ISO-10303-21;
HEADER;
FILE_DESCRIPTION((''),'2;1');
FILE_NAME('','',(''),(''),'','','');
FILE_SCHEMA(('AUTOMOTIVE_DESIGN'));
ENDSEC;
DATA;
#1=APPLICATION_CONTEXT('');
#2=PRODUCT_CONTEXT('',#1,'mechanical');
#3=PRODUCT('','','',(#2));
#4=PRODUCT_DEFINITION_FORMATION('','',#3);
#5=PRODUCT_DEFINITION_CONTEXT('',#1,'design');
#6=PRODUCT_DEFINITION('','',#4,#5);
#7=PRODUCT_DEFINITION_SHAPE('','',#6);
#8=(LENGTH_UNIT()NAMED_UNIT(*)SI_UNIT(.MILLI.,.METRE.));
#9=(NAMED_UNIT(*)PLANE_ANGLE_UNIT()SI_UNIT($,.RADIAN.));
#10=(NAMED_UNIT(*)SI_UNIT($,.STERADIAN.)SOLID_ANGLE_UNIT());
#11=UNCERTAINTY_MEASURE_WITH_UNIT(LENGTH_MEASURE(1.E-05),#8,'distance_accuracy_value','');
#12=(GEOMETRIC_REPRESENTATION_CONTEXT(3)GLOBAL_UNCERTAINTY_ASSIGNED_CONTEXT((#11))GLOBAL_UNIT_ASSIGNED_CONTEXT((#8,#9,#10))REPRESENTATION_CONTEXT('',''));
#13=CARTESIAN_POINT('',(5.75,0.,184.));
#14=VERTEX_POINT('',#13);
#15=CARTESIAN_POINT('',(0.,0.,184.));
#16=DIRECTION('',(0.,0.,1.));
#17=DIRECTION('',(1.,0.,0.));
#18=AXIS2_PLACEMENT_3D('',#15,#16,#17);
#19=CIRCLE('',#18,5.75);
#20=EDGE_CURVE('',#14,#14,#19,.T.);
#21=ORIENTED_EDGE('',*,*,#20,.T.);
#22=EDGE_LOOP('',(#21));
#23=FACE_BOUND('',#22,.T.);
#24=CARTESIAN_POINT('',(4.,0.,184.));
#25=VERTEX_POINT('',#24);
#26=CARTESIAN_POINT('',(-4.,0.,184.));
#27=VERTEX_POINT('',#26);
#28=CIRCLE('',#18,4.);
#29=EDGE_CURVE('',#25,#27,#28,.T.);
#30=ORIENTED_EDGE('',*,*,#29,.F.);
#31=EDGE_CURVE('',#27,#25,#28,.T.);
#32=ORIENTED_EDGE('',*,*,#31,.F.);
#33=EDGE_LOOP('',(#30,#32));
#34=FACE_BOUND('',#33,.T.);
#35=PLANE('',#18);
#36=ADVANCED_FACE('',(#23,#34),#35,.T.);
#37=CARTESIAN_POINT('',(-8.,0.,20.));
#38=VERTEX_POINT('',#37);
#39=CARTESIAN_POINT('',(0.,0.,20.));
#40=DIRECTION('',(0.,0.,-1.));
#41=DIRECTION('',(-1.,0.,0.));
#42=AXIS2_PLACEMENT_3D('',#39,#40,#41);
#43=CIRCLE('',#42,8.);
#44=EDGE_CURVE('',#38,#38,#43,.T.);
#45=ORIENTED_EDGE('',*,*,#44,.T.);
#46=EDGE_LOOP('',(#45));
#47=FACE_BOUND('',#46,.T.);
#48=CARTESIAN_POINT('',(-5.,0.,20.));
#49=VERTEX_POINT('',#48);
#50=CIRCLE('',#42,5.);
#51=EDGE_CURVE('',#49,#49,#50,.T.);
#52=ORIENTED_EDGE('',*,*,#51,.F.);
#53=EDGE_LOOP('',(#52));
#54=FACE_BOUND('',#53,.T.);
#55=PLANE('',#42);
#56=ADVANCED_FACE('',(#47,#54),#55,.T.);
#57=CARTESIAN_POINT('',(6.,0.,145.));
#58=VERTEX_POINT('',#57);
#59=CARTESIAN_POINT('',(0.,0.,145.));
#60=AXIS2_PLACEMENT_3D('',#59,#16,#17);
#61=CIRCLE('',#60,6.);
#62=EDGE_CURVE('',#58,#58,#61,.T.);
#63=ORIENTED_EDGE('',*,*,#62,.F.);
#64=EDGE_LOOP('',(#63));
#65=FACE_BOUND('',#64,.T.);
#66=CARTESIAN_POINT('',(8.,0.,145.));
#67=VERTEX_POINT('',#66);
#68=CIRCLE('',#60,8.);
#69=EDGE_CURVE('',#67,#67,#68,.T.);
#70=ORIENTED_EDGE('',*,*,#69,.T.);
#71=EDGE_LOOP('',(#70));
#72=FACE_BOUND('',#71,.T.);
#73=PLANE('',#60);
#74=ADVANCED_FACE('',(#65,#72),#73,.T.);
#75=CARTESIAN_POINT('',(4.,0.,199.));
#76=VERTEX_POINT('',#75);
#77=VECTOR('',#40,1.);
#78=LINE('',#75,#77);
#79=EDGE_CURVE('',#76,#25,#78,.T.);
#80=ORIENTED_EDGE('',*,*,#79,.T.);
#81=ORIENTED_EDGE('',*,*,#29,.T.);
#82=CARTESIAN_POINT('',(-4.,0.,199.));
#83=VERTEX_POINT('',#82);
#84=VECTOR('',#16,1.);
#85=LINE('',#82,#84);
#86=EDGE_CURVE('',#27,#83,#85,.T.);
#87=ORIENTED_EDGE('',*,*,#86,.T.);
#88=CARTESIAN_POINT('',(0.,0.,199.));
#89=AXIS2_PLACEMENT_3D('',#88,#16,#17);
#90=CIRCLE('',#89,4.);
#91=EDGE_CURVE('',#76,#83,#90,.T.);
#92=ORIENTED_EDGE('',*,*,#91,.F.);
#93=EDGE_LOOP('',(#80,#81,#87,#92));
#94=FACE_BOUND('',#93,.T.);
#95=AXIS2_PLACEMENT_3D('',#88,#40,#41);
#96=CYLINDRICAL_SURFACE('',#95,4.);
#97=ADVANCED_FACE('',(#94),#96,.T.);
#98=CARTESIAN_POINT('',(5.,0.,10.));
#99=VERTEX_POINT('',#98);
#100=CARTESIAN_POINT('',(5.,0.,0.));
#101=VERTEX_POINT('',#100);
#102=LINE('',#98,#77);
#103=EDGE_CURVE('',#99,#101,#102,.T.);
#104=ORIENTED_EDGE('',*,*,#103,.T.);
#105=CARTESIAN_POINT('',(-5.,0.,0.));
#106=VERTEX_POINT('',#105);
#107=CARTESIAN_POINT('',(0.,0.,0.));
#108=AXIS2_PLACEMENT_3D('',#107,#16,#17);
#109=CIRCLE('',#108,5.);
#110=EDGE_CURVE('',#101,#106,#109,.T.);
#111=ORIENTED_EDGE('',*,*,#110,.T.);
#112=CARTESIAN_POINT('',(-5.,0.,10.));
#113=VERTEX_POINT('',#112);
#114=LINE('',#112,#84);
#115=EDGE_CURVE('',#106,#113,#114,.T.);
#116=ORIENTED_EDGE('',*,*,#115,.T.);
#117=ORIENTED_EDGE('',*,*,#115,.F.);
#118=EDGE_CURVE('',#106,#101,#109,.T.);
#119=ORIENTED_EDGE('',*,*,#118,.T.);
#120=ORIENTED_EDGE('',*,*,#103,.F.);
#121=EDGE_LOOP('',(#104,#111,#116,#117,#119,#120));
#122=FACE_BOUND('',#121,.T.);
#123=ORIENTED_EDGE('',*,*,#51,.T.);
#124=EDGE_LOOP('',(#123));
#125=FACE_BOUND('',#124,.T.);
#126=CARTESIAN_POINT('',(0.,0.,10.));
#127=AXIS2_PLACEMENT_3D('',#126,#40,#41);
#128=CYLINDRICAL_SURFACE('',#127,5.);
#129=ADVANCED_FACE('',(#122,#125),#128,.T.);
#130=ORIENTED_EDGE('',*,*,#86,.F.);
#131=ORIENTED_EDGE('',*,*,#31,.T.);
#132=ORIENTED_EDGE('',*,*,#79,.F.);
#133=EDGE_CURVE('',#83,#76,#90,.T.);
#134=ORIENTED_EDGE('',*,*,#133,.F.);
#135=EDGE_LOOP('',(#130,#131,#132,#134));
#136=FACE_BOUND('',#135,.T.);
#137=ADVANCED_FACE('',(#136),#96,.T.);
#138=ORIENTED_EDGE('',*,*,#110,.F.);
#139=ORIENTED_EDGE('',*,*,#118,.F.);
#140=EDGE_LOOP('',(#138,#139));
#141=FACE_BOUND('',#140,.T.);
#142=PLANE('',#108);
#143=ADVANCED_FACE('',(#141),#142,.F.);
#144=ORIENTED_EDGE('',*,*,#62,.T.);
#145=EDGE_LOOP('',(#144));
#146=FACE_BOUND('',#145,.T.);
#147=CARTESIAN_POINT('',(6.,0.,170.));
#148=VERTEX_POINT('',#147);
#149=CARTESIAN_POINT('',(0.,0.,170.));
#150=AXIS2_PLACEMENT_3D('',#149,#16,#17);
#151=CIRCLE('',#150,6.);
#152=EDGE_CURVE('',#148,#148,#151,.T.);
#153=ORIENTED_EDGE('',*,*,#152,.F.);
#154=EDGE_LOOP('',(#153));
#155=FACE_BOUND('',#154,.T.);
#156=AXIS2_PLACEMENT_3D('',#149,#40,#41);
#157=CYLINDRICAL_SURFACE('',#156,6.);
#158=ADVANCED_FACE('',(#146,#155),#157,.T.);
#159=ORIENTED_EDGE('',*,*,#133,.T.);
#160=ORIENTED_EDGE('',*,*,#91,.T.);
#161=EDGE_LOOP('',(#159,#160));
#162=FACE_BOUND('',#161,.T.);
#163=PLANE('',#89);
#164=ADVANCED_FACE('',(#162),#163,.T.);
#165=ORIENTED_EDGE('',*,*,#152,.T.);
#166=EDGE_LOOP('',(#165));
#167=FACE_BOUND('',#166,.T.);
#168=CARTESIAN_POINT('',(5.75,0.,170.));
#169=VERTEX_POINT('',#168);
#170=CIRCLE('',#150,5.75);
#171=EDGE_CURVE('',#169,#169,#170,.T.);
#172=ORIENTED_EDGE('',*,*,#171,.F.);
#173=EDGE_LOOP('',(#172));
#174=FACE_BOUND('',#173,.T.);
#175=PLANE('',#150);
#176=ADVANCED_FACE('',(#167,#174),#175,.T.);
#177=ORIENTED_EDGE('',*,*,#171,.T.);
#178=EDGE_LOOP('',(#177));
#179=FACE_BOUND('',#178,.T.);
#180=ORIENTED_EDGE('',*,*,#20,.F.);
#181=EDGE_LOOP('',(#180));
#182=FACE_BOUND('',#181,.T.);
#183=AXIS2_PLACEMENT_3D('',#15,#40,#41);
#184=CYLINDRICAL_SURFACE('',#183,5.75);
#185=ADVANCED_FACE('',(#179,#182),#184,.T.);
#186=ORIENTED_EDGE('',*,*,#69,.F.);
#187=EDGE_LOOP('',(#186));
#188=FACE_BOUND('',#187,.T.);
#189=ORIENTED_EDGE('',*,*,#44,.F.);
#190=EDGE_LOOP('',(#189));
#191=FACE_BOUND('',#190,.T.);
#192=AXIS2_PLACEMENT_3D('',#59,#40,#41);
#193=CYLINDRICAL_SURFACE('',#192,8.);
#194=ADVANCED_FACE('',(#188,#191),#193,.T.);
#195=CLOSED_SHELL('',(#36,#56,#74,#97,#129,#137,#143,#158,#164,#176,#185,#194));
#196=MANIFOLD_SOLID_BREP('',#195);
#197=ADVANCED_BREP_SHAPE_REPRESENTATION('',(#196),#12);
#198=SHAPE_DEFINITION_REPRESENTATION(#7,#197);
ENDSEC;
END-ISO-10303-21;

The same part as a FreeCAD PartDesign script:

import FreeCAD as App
import Part
import Sketcher
from FreeCAD import Vector
Q = App.Units.Quantity

doc = App.newDocument("Part")
params = doc.addObject("Spreadsheet::Sheet", "Params")
for row, (alias, value) in enumerate([
    ("sketch1_diameter", "10 mm"),
    ("pad1_length", "10 mm"),
    ("sketch2_diameter", "16 mm"),
    ("pad2_length", "135 mm"),
    ("sketch3_diameter", "12 mm"),
    ("pad3_length", "25 mm"),
    ("sketch4_diameter", "11.5 mm"),
    ("pad4_length", "14 mm"),
    ("sketch5_diameter", "8 mm"),
    ("pad5_length", "15 mm"),
    ("sketch6_diameter", "16 mm"),
    ("sketch6_diameter2", "10 mm"),
    ("pocket1_length", "10 mm"),
], start=1):
    params.set(f"A{row}", alias)
    params.set(f"B{row}", "=" + value)
    params.setAlias(f"B{row}", alias)

body = doc.addObject("PartDesign::Body", "Body")

sketch1 = doc.addObject("Sketcher::SketchObject", "Sketch")
body.addObject(sketch1)
sketch1.AttachmentSupport = (doc.XY_Plane, [""])
sketch1.MapMode = "FlatFace"
sketch1.addGeometry(Part.Circle(Vector(0, 0, 0), Vector(0, 0, 1), 5), False)
sketch1.addConstraint([
    Sketcher.Constraint("Coincident", 0, 3, -1, 1),
    Sketcher.Constraint("Diameter", 0, Q("10 mm")),
])
sketch1.setExpression("Constraints[1]", "Params.sketch1_diameter")
pad1 = doc.addObject("PartDesign::Pad", "Pad")
body.addObject(pad1)
pad1.Profile = sketch1
pad1.setExpression("Length", "Params.pad1_length")

sketch2 = doc.addObject("Sketcher::SketchObject", "Sketch001")
body.addObject(sketch2)
sketch2.AttachmentSupport = (doc.XY_Plane, [""])
sketch2.MapMode = "FlatFace"
sketch2.AttachmentOffset = App.Placement(Vector(0, 0, 10), App.Rotation())
sketch2.addGeometry(Part.Circle(Vector(0, 0, 0), Vector(0, 0, 1), 8), False)
sketch2.addConstraint([
    Sketcher.Constraint("Coincident", 0, 3, -1, 1),
    Sketcher.Constraint("Diameter", 0, Q("16 mm")),
])
sketch2.setExpression("Constraints[1]", "Params.sketch2_diameter")
pad2 = doc.addObject("PartDesign::Pad", "Pad001")
body.addObject(pad2)
pad2.Profile = sketch2
pad2.setExpression("Length", "Params.pad2_length")

sketch3 = doc.addObject("Sketcher::SketchObject", "Sketch002")
body.addObject(sketch3)
sketch3.AttachmentSupport = (doc.XY_Plane, [""])
sketch3.MapMode = "FlatFace"
sketch3.AttachmentOffset = App.Placement(Vector(0, 0, 145), App.Rotation())
sketch3.addGeometry(Part.Circle(Vector(0, 0, 0), Vector(0, 0, 1), 6), False)
sketch3.addConstraint([
    Sketcher.Constraint("Coincident", 0, 3, -1, 1),
    Sketcher.Constraint("Diameter", 0, Q("12 mm")),
])
sketch3.setExpression("Constraints[1]", "Params.sketch3_diameter")
pad3 = doc.addObject("PartDesign::Pad", "Pad002")
body.addObject(pad3)
pad3.Profile = sketch3
pad3.setExpression("Length", "Params.pad3_length")

sketch4 = doc.addObject("Sketcher::SketchObject", "Sketch003")
body.addObject(sketch4)
sketch4.AttachmentSupport = (doc.XY_Plane, [""])
sketch4.MapMode = "FlatFace"
sketch4.AttachmentOffset = App.Placement(Vector(0, 0, 170), App.Rotation())
sketch4.addGeometry(Part.Circle(Vector(0, 0, 0), Vector(0, 0, 1), 6), False)
sketch4.addConstraint([
    Sketcher.Constraint("Coincident", 0, 3, -1, 1),
    Sketcher.Constraint("Diameter", 0, Q("11.5 mm")),
])
sketch4.setExpression("Constraints[1]", "Params.sketch4_diameter")
pad4 = doc.addObject("PartDesign::Pad", "Pad003")
body.addObject(pad4)
pad4.Profile = sketch4
pad4.setExpression("Length", "Params.pad4_length")

sketch5 = doc.addObject("Sketcher::SketchObject", "Sketch004")
body.addObject(sketch5)
sketch5.AttachmentSupport = (doc.XY_Plane, [""])
sketch5.MapMode = "FlatFace"
sketch5.AttachmentOffset = App.Placement(Vector(0, 0, 184), App.Rotation())
sketch5.addGeometry(Part.Circle(Vector(0, 0, 0), Vector(0, 0, 1), 4), False)
sketch5.addConstraint([
    Sketcher.Constraint("Coincident", 0, 3, -1, 1),
    Sketcher.Constraint("Diameter", 0, Q("8 mm")),
])
sketch5.setExpression("Constraints[1]", "Params.sketch5_diameter")
pad5 = doc.addObject("PartDesign::Pad", "Pad004")
body.addObject(pad5)
pad5.Profile = sketch5
pad5.setExpression("Length", "Params.pad5_length")

sketch6 = doc.addObject("Sketcher::SketchObject", "Sketch005")
body.addObject(sketch6)
sketch6.AttachmentSupport = (doc.XY_Plane, [""])
sketch6.MapMode = "FlatFace"
sketch6.AttachmentOffset = App.Placement(Vector(0, 0, 10), App.Rotation())
sketch6.addGeometry([
    Part.Circle(Vector(0, 0, 0), Vector(0, 0, 1), 8),
    Part.Circle(Vector(0, 0, 0), Vector(0, 0, 1), 5),
], False)
sketch6.addConstraint([
    Sketcher.Constraint("Coincident", 0, 3, -1, 1),
    Sketcher.Constraint("Coincident", 1, 3, -1, 1),
    Sketcher.Constraint("Diameter", 0, Q("16 mm")),
    Sketcher.Constraint("Diameter", 1, Q("10 mm")),
])
sketch6.setExpression("Constraints[2]", "Params.sketch6_diameter")
sketch6.setExpression("Constraints[3]", "Params.sketch6_diameter2")
pocket1 = doc.addObject("PartDesign::Pocket", "Pocket")
body.addObject(pocket1)
pocket1.Profile = sketch6
pocket1.setExpression("Length", "Params.pocket1_length")
pocket1.Reversed = True

doc.recompute()
